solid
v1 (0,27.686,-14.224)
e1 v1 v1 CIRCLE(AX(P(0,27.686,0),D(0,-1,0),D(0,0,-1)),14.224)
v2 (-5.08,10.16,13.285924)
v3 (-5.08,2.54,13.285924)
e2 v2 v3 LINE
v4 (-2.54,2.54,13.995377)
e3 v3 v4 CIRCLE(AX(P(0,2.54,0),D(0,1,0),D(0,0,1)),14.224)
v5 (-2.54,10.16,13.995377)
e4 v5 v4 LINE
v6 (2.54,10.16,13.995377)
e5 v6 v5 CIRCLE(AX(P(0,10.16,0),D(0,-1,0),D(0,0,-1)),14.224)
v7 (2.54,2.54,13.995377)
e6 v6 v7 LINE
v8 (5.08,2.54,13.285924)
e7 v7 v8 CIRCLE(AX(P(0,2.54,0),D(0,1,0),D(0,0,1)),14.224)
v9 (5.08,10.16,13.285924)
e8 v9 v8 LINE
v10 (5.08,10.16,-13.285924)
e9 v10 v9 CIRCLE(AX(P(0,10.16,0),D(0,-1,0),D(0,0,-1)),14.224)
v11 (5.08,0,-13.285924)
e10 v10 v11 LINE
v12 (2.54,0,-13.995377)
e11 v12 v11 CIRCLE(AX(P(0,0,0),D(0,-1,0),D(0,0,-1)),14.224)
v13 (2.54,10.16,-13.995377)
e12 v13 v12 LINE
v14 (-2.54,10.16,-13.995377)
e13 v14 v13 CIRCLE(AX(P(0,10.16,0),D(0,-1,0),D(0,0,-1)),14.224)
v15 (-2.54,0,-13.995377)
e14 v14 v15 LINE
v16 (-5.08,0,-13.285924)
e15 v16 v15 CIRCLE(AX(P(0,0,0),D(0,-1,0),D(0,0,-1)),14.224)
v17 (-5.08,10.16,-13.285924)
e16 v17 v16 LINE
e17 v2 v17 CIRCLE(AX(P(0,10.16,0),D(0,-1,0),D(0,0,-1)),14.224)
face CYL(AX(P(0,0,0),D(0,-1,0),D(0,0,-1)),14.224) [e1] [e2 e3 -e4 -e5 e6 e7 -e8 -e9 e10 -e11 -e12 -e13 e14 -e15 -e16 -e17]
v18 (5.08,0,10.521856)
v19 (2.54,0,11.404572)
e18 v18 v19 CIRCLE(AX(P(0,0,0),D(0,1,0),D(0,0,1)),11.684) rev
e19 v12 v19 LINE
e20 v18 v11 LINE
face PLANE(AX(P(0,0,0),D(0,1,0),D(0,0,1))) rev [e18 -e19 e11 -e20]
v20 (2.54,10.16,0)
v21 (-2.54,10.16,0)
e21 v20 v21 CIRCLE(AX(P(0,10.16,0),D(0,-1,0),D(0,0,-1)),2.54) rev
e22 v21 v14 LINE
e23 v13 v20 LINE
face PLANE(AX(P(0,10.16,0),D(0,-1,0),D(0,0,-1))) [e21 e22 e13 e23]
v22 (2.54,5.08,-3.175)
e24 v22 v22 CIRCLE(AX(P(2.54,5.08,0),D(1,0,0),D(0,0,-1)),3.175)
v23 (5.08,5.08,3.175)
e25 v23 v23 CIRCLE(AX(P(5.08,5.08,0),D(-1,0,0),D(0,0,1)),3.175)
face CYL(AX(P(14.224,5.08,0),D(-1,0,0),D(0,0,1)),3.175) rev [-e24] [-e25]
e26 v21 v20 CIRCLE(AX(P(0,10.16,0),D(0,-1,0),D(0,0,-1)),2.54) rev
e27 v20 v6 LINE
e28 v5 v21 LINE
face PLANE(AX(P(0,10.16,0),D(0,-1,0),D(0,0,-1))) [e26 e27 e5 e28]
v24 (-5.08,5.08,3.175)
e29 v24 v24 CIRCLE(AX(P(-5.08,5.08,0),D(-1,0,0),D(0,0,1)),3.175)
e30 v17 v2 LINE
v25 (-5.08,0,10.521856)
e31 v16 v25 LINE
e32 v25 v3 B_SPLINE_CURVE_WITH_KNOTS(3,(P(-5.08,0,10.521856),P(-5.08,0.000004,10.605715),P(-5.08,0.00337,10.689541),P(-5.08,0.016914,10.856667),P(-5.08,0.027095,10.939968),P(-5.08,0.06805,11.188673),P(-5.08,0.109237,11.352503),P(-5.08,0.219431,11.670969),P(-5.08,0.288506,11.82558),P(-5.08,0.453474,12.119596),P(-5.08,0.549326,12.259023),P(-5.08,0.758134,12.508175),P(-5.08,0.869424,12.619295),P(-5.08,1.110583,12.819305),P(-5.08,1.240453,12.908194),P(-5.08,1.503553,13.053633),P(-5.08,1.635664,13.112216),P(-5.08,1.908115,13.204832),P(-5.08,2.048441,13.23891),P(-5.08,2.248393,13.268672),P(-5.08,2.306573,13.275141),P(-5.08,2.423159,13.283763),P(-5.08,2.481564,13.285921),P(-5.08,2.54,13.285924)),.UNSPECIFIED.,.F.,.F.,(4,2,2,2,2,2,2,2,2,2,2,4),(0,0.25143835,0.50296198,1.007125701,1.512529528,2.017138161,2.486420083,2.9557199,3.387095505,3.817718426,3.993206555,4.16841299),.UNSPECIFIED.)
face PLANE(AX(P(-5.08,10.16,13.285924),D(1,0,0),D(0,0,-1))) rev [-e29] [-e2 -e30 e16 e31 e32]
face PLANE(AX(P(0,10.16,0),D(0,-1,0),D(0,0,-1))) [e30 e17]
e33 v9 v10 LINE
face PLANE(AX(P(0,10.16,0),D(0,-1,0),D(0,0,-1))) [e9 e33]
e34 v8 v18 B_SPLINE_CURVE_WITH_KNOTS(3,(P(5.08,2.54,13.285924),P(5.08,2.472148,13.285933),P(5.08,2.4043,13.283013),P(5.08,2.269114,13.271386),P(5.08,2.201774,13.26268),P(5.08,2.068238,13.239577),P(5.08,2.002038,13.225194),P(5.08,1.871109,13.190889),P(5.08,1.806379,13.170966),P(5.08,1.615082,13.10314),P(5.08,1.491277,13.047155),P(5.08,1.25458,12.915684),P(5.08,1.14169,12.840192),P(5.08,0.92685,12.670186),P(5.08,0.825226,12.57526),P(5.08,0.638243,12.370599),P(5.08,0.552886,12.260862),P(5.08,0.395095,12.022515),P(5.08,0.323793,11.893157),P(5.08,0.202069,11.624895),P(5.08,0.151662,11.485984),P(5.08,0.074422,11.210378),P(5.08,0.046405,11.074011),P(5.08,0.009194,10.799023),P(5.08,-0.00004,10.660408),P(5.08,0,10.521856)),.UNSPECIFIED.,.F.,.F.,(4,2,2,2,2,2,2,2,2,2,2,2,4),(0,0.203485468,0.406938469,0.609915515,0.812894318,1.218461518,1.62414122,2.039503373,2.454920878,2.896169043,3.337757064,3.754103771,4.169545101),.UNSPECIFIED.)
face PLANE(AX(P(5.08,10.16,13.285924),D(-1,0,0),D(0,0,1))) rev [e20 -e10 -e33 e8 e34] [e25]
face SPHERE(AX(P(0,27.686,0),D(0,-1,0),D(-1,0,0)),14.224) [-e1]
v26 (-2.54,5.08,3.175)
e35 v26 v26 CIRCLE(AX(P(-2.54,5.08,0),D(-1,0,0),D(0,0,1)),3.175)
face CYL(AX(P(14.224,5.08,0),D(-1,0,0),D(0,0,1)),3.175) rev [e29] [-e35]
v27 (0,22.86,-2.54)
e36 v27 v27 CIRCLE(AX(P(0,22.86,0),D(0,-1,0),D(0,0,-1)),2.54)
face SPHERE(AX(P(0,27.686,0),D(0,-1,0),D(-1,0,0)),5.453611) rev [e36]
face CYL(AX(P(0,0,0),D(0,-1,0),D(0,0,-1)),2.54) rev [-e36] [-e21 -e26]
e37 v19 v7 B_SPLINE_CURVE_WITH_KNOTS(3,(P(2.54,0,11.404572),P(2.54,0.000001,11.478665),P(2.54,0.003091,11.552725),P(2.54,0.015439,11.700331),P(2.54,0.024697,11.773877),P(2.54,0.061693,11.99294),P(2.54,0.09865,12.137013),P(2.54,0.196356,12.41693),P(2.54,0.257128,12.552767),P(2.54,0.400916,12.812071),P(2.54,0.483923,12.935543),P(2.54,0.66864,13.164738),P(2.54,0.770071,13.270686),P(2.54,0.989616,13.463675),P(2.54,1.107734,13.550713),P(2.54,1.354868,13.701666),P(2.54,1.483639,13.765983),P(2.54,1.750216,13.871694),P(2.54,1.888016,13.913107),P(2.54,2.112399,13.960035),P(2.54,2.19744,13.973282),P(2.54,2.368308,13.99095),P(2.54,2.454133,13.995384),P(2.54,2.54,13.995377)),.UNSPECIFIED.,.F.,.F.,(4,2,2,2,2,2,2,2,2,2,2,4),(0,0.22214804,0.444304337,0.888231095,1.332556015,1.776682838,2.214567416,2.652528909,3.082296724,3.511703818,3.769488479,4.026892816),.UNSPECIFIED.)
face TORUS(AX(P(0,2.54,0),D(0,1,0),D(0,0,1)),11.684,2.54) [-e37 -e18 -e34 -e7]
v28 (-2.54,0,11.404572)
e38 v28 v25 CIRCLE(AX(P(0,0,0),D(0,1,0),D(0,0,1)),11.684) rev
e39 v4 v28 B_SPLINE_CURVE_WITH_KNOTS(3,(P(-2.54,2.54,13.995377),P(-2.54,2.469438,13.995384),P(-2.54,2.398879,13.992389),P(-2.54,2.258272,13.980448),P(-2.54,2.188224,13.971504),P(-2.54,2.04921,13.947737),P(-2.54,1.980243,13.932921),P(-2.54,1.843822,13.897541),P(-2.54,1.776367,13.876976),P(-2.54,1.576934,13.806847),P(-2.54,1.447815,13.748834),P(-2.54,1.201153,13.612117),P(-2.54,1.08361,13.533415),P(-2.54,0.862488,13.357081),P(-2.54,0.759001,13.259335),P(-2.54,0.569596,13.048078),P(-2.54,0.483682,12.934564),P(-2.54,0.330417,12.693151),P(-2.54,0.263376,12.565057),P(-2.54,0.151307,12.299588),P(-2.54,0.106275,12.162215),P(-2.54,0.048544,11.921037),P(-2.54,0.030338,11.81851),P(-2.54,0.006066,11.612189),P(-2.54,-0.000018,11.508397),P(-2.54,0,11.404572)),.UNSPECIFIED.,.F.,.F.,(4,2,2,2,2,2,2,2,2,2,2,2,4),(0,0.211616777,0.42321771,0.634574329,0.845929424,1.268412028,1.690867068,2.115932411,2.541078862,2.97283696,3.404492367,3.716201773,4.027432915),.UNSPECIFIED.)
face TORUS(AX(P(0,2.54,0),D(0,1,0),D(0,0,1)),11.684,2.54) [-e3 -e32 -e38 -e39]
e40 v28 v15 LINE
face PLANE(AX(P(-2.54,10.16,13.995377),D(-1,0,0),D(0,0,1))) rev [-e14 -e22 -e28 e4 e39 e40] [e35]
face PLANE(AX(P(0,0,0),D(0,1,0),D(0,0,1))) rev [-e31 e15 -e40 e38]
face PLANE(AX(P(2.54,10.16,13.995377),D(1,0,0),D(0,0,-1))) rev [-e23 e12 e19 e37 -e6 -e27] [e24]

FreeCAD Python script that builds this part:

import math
import FreeCAD as App
import Part
import Sketcher

V = App.Vector
Q = App.Units.Quantity


def edges_at(feature, points):
    """Names of the edges that pass closest to the given points."""
    edges = feature.Shape.Edges
    near = lambda p: min(range(len(edges)), key=lambda i: edges[i].distToShape(Part.Vertex(*p))[0])
    return sorted({f"Edge{near(p) + 1}" for p in points})

doc = App.newDocument("Part")
params = doc.addObject("Spreadsheet::Sheet", "Params")
for row, (alias, value) in enumerate([
    ("sketch1_radius", "0.56 in"),
    ("sketch1_width", "0.1 in"),
    ("sketch1_height", "1.09 in"),
    ("revolution_angle", "360 deg"),
    ("sketch2_radius", "0.56 in"),
    ("pocket1_length", "0.4 in"),
    ("sketch3_diameter", "0.25 in"),
    ("fillet_radius", "0.1 in"),
], start=1):
    params.set(f"A{row}", alias)
    params.set(f"B{row}", "=" + value)
    params.setAlias(f"B{row}", alias)

body = doc.addObject("PartDesign::Body", "Body")

# Sketch on XY plane
sketch1 = body.newObject("Sketcher::SketchObject", "Sketch")
sketch1.AttachmentSupport = (doc.getObject("XY_Plane"), [""])
sketch1.MapMode = "FlatFace"
sketch1.addGeometry(Part.LineSegment(V(0, 0, 0), V(0, 5.6, 0)), False)
sketch1.addGeometry(Part.LineSegment(V(0, 5.6, 0), V(-2.5, 5.6, 0)), False)
sketch1.addGeometry(Part.LineSegment(V(-2.5, 5.6, 0), V(-2.5, 22.9, 0)), False)
sketch1.addGeometry(Part.ArcOfCircle(Part.Circle(V(0, 27.7, 0), V(0, 0, 1), 5.5), math.radians(90), math.radians(242)), False)
sketch1.addGeometry(Part.LineSegment(V(0, 33.1, 0), V(0, 41.9, 0)), False)
sketch1.addGeometry(Part.ArcOfCircle(Part.Circle(V(0, 27.7, 0), V(0, 0, 1), 14.2), math.radians(90), math.radians(180)), False)
sketch1.addGeometry(Part.LineSegment(V(-14.2, 27.7, 0), V(-14.2, 0, 0)), False)
sketch1.addGeometry(Part.LineSegment(V(-14.2, 0, 0), V(0, 0, 0)), False)
sketch1.addConstraint(Sketcher.Constraint("Coincident", 0, 2, 1, 1))
sketch1.addConstraint(Sketcher.Constraint("Coincident", 1, 2, 2, 1))
sketch1.addConstraint(Sketcher.Constraint("Coincident", 2, 2, 3, 2))
sketch1.addConstraint(Sketcher.Constraint("Coincident", 3, 1, 4, 1))
sketch1.addConstraint(Sketcher.Constraint("Coincident", 4, 2, 5, 1))
sketch1.addConstraint(Sketcher.Constraint("Tangent", 5, 2, 6, 1))
sketch1.addConstraint(Sketcher.Constraint("Coincident", 6, 2, 7, 1))
sketch1.addConstraint(Sketcher.Constraint("Coincident", 7, 2, 0, 1))
sketch1.addConstraint(Sketcher.Constraint("Vertical", 0))
sketch1.addConstraint(Sketcher.Constraint("Horizontal", 1))
sketch1.addConstraint(Sketcher.Constraint("Vertical", 2))
sketch1.addConstraint(Sketcher.Constraint("Vertical", 4))
sketch1.addConstraint(Sketcher.Constraint("Vertical", 6))
sketch1.addConstraint(Sketcher.Constraint("Horizontal", 7))
sketch1.addConstraint(Sketcher.Constraint("Coincident", 7, 2, -1, 1))
sketch1.addConstraint(Sketcher.Constraint("Coincident", 5, 3, 3, 3))
sketch1.addConstraint(Sketcher.Constraint("PointOnObject", 3, 3, -2))
sketch1.addConstraint(Sketcher.Constraint("PointOnObject", 3, 1, -2))
sketch1.addConstraint(Sketcher.Constraint("Radius", 5, Q("0.56 in")))
sketch1.addConstraint(Sketcher.Constraint("DistanceX", 1, 2, 1, 1, Q("0.1 in")))
sketch1.addConstraint(Sketcher.Constraint("DistanceY", 6, 2, 6, 1, Q("1.09 in")))
sketch1.addConstraint(Sketcher.Constraint("DistanceY", -1, 1, 2, 2, Q("0.9 in")))
sketch1.addConstraint(Sketcher.Constraint("DistanceY", 0, 1, 0, 2, 5.602635))
sketch1.setExpression("Constraints[18]", "Params.sketch1_radius")
sketch1.setExpression("Constraints[19]", "Params.sketch1_width")
sketch1.setExpression("Constraints[20]", "Params.sketch1_height")
revolution = body.newObject("PartDesign::Revolution", "Revolution")
revolution.Profile = sketch1
revolution.ReferenceAxis = (sketch1, ["V_Axis"])
revolution.setExpression("Angle", "Params.revolution_angle")

# Sketch on XZ plane
sketch2 = body.newObject("Sketcher::SketchObject", "Sketch001")
sketch2.AttachmentSupport = (doc.getObject("XZ_Plane"), [""])
sketch2.MapMode = "FlatFace"
sketch2.addGeometry(Part.LineSegment(V(-3, 14, 0), V(-3, -14, 0)), False)
sketch2.addGeometry(Part.ArcOfCircle(Part.Circle(V(0, 0, 0), V(0, 0, 1), 14), math.radians(-100), math.radians(-80)), False)
sketch2.addGeometry(Part.LineSegment(V(3, -14, 0), V(3, 14, 0)), False)
sketch2.addGeometry(Part.ArcOfCircle(Part.Circle(V(0, 0, 0), V(0, 0, 1), 14), math.radians(80), math.radians(100)), False)
sketch2.addGeometry(Part.LineSegment(V(-5, -13, 0), V(-5, 13, 0)), False)
sketch2.addGeometry(Part.ArcOfCircle(Part.Circle(V(0, 0, 0), V(0, 0, 1), 14), math.radians(111), math.radians(249)), False)
sketch2.addGeometry(Part.LineSegment(V(5, 13, 0), V(5, -13, 0)), False)
sketch2.addGeometry(Part.ArcOfCircle(Part.Circle(V(0, 0, 0), V(0, 0, 1), 14), math.radians(-69), math.radians(69)), False)
sketch2.addConstraint(Sketcher.Constraint("Coincident", 0, 2, 1, 1))
sketch2.addConstraint(Sketcher.Constraint("Coincident", 1, 2, 2, 1))
sketch2.addConstraint(Sketcher.Constraint("Coincident", 2, 2, 3, 1))
sketch2.addConstraint(Sketcher.Constraint("Coincident", 3, 2, 0, 1))
sketch2.addConstraint(Sketcher.Constraint("Coincident", 4, 1, 5, 2))
sketch2.addConstraint(Sketcher.Constraint("Coincident", 5, 1, 4, 2))
sketch2.addConstraint(Sketcher.Constraint("Coincident", 6, 1, 7, 2))
sketch2.addConstraint(Sketcher.Constraint("Coincident", 7, 1, 6, 2))
sketch2.addConstraint(Sketcher.Constraint("Vertical", 0))
sketch2.addConstraint(Sketcher.Constraint("Vertical", 2))
sketch2.addConstraint(Sketcher.Constraint("Vertical", 4))
sketch2.addConstraint(Sketcher.Constraint("Vertical", 6))
sketch2.addConstraint(Sketcher.Constraint("Coincident", 1, 3, -1, 1))
sketch2.addConstraint(Sketcher.Constraint("Coincident", 3, 3, -1, 1))
sketch2.addConstraint(Sketcher.Constraint("Coincident", 5, 3, -1, 1))
sketch2.addConstraint(Sketcher.Constraint("Coincident", 7, 3, -1, 1))
sketch2.addConstraint(Sketcher.Constraint("Equal", 1, 3))
sketch2.addConstraint(Sketcher.Constraint("Equal", 3, 5))
sketch2.addConstraint(Sketcher.Constraint("Equal", 5, 7))
sketch2.addConstraint(Sketcher.Constraint("Horizontal", 0, 2, 1, 2))
sketch2.addConstraint(Sketcher.Constraint("Horizontal", 5, 1, 6, 1))
sketch2.addConstraint(Sketcher.Constraint("Radius", 1, Q("0.56 in")))
sketch2.addConstraint(Sketcher.Constraint("DistanceX", 0, 2, -1, 1, Q("0.1 in")))
sketch2.addConstraint(Sketcher.Constraint("DistanceX", 4, 1, -1, 1, Q("0.2 in")))
sketch2.setExpression("Constraints[21]", "Params.sketch2_radius")
pocket1 = body.newObject("PartDesign::Pocket", "Pocket")
pocket1.Profile = sketch2
pocket1.setExpression("Length", "Params.pocket1_length")

# Sketch on YZ plane
sketch3 = body.newObject("Sketcher::SketchObject", "Sketch002")
sketch3.AttachmentSupport = (doc.getObject("YZ_Plane"), [""])
sketch3.MapMode = "FlatFace"
sketch3.AttachmentOffset = App.Placement(V(0, 0, -0.2 * 25.4), App.Rotation())
sketch3.addGeometry(Part.Circle(V(5.1, 0, 0), V(0, 0, 1), 3.2), False)
sketch3.addConstraint(Sketcher.Constraint("PointOnObject", 0, 3, -1))
sketch3.addConstraint(Sketcher.Constraint("Diameter", 0, Q("0.25 in")))
sketch3.addConstraint(Sketcher.Constraint("DistanceX", -1, 1, 0, 3, Q("0.2 in")))
sketch3.setExpression("Constraints[1]", "Params.sketch3_diameter")
pocket2 = body.newObject("PartDesign::Pocket", "Pocket001")
pocket2.Profile = sketch3
pocket2.Type = "ThroughAll"
pocket2.Reversed = True
doc.recompute()

fillet = body.newObject("PartDesign::Fillet", "Fillet")
fillet.Base = (pocket2, edges_at(pocket2, [(3.826, 0, 13.7), (-3.826, 0, 13.7)]))
fillet.setExpression("Radius", "Params.fillet_radius")

doc.recompute()
